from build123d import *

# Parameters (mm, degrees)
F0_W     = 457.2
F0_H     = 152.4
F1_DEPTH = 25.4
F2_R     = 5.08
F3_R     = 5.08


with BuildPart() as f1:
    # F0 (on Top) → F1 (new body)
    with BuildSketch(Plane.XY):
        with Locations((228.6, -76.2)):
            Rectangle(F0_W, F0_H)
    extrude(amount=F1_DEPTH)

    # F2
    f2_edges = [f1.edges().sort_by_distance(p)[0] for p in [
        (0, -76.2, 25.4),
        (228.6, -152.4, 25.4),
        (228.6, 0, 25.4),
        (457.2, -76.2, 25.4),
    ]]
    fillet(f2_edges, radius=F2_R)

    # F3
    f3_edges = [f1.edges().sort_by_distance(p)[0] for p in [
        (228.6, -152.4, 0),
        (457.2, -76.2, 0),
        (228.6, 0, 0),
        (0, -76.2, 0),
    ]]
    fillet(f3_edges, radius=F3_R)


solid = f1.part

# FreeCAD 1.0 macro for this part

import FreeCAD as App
import Part
import Sketcher
Q = App.Units.Quantity


def edges_at(feature, points):
    """Names of the edges that pass closest to the given points."""
    edges = feature.Shape.Edges
    near = lambda p: min(range(len(edges)), key=lambda i: edges[i].distToShape(Part.Vertex(*p))[0])
    return sorted({f"Edge{near(p) + 1}" for p in points})


def add_polygon(sketch, points):
    """Adds a closed chain of lines whose ends are joined by coincident constraints."""
    first, n = sketch.GeometryCount, len(points)
    for a, b in zip(points, points[1:] + points[:1]):
        sketch.addGeometry(Part.LineSegment(App.Vector(*a, 0), App.Vector(*b, 0)), False)
    for i in range(n):
        sketch.addConstraint(Sketcher.Constraint("Coincident", first + i, 2, first + (i + 1) % n, 1))

doc = App.newDocument("Part")
params = doc.addObject("Spreadsheet::Sheet", "Params")
for row, (alias, value) in enumerate([
    ("sketch1_width", "18 in"),
    ("sketch1_height", "6 in"),
    ("pad1_length", "1 in"),
    ("fillet_radius", "0.2 in"),
    ("fillet2_radius", "0.2 in"),
], start=1):
    params.set(f"A{row}", alias)
    params.set(f"B{row}", "=" + value)
    params.setAlias(f"B{row}", alias)

body = doc.addObject("PartDesign::Body", "Body")

# Sketch on XY plane
sketch1 = doc.addObject("Sketcher::SketchObject", "Sketch")
body.addObject(sketch1)
sketch1.AttachmentSupport = (doc.XY_Plane, [""])
sketch1.MapMode = "FlatFace"
add_polygon(sketch1, [(0, 0), (0, -152), (457, -152), (457, 0)])  # lines 0-3
sketch1.addConstraint([
    Sketcher.Constraint("Vertical", 0),
    Sketcher.Constraint("Horizontal", 1),
    Sketcher.Constraint("Vertical", 2),
    Sketcher.Constraint("Horizontal", 3),
    Sketcher.Constraint("Coincident", 3, 2, -1, 1),
    Sketcher.Constraint("DistanceX", 1, 1, 1, 2, Q("18 in")),
    Sketcher.Constraint("DistanceY", 0, 2, 0, 1, Q("6 in")),
])
sketch1.setExpression("Constraints[9]", "Params.sketch1_width")
sketch1.setExpression("Constraints[10]", "Params.sketch1_height")
pad1 = doc.addObject("PartDesign::Pad", "Pad")
body.addObject(pad1)
pad1.Profile = sketch1
pad1.setExpression("Length", "Params.pad1_length")
doc.recompute()

fillet = doc.addObject("PartDesign::Fillet", "Fillet")
body.addObject(fillet)
fillet.Base = (pad1, edges_at(pad1, [
    (0, -76.2, 25.4),
    (228.6, -152.4, 25.4),
    (228.6, 0, 25.4),
    (457.2, -76.2, 25.4),
]))
fillet.setExpression("Radius", "Params.fillet_radius")
doc.recompute()

fillet2 = doc.addObject("PartDesign::Fillet", "Fillet001")
body.addObject(fillet2)
fillet2.Base = (fillet, edges_at(fillet, [
    (228.6, -152.4, 0),
    (457.2, -76.2, 0),
    (228.6, 0, 0),
    (0, -76.2, 0),
]))
fillet2.setExpression("Radius", "Params.fillet2_radius")

doc.recompute()
